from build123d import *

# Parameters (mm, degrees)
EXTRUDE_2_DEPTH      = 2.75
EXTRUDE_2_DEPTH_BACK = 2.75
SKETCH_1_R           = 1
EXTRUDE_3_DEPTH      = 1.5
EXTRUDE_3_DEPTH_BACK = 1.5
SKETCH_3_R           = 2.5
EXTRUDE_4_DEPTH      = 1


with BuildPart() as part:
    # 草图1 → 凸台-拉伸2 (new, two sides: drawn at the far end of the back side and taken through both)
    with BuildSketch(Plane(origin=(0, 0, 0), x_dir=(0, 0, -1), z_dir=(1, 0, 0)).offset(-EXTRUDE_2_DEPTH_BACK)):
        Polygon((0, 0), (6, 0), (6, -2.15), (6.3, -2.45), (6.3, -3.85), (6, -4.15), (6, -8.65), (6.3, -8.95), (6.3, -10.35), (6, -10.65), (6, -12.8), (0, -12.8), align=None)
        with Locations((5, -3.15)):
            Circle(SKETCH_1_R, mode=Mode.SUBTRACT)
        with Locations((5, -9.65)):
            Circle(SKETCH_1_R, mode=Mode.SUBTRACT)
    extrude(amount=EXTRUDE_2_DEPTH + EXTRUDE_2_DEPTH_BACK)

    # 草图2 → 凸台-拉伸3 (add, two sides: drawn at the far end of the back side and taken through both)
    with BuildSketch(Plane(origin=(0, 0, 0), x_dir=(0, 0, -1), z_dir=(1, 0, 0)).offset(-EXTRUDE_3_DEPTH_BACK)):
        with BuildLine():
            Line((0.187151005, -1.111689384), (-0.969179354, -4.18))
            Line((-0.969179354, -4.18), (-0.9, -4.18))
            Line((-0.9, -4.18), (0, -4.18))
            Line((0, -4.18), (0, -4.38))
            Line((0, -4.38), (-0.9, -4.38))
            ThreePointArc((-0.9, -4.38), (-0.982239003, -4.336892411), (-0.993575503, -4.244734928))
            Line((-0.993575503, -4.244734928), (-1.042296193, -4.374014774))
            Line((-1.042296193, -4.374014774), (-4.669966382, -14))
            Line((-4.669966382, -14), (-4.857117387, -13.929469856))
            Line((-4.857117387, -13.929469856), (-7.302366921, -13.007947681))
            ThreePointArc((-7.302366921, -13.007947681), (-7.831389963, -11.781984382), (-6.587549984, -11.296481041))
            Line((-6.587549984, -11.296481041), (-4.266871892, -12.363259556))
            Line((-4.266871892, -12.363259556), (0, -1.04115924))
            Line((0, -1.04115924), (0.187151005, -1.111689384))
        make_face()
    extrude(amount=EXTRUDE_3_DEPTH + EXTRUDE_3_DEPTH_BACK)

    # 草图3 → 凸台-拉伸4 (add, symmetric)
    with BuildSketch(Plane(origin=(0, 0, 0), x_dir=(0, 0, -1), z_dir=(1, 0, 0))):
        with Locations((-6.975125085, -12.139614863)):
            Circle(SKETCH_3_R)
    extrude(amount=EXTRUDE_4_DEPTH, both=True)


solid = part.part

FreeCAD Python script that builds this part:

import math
import FreeCAD as App
import Part
import Sketcher
from FreeCAD import Vector
Q = App.Units.Quantity

doc = App.newDocument("Part")
body = doc.addObject("PartDesign::Body", "Body")

sketch1 = doc.addObject("Sketcher::SketchObject", "Sketch")
body.addObject(sketch1)
sketch1.AttachmentSupport = (doc.YZ_Plane, [""])
sketch1.MapMode = "FlatFace"
sketch1.addGeometry(Part.LineSegment(Vector(0, -6, 0), Vector(0, 0, 0)), False)
sketch1.addGeometry(Part.LineSegment(Vector(0, 0, 0), Vector(-12.8, 0, 0)), False)
sketch1.addGeometry(Part.LineSegment(Vector(-12.8, 0, 0), Vector(-12.8, -6, 0)), False)
sketch1.addGeometry(Part.LineSegment(Vector(-12.8, -6, 0), Vector(-10.65, -6, 0)), False)
sketch1.addGeometry(Part.LineSegment(Vector(-10.65, -6, 0), Vector(-10.35, -6.3, 0)), False)
sketch1.addGeometry(Part.LineSegment(Vector(-10.35, -6.3, 0), Vector(-8.95, -6.3, 0)), False)
sketch1.addGeometry(Part.LineSegment(Vector(-8.95, -6.3, 0), Vector(-8.65, -6, 0)), False)
sketch1.addGeometry(Part.LineSegment(Vector(-8.65, -6, 0), Vector(-4.15, -6, 0)), False)
sketch1.addGeometry(Part.LineSegment(Vector(-4.15, -6, 0), Vector(-3.85, -6.3, 0)), False)
sketch1.addGeometry(Part.LineSegment(Vector(-3.85, -6.3, 0), Vector(-2.45, -6.3, 0)), False)
sketch1.addGeometry(Part.LineSegment(Vector(-2.45, -6.3, 0), Vector(-2.15, -6, 0)), False)
sketch1.addGeometry(Part.LineSegment(Vector(-2.15, -6, 0), Vector(0, -6, 0)), False)
sketch1.addGeometry(Part.Circle(Vector(-9.65, -5, 0), Vector(0, 0, 1), 1), False)
sketch1.addGeometry(Part.Circle(Vector(-3.15, -5, 0), Vector(0, 0, 1), 1), False)
sketch1.addConstraint(Sketcher.Constraint("Coincident", 0, 2, 1, 1))
sketch1.addConstraint(Sketcher.Constraint("Coincident", 1, 2, 2, 1))
sketch1.addConstraint(Sketcher.Constraint("Coincident", 2, 2, 3, 1))
sketch1.addConstraint(Sketcher.Constraint("Coincident", 3, 2, 4, 1))
sketch1.addConstraint(Sketcher.Constraint("Coincident", 4, 2, 5, 1))
sketch1.addConstraint(Sketcher.Constraint("Coincident", 5, 2, 6, 1))
sketch1.addConstraint(Sketcher.Constraint("Coincident", 6, 2, 7, 1))
sketch1.addConstraint(Sketcher.Constraint("Coincident", 7, 2, 8, 1))
sketch1.addConstraint(Sketcher.Constraint("Coincident", 8, 2, 9, 1))
sketch1.addConstraint(Sketcher.Constraint("Coincident", 9, 2, 10, 1))
sketch1.addConstraint(Sketcher.Constraint("Coincident", 10, 2, 11, 1))
sketch1.addConstraint(Sketcher.Constraint("Coincident", 11, 2, 0, 1))
sketch1.addConstraint(Sketcher.Constraint("Vertical", 0))
sketch1.addConstraint(Sketcher.Constraint("Horizontal", 1))
sketch1.addConstraint(Sketcher.Constraint("Vertical", 2))
sketch1.addConstraint(Sketcher.Constraint("Horizontal", 3))
sketch1.addConstraint(Sketcher.Constraint("Horizontal", 5))
sketch1.addConstraint(Sketcher.Constraint("Horizontal", 7))
sketch1.addConstraint(Sketcher.Constraint("Horizontal", 9))
sketch1.addConstraint(Sketcher.Constraint("Horizontal", 11))
sketch1.addConstraint(Sketcher.Constraint("Coincident", 0, 2, -1, 1))
sketch1.addConstraint(Sketcher.Constraint("Equal", 12, 13))
sketch1.addConstraint(Sketcher.Constraint("Perpendicular", 4, 6))
sketch1.addConstraint(Sketcher.Constraint("Perpendicular", 6, 8))
sketch1.addConstraint(Sketcher.Constraint("Perpendicular", 8, 10))
sketch1.addConstraint(Sketcher.Constraint("Horizontal", 12, 3, 13, 3))
sketch1.addConstraint(Sketcher.Constraint("Horizontal", 3, 2, 6, 2))
sketch1.addConstraint(Sketcher.Constraint("Horizontal", 5, 2, 8, 2))
sketch1.addConstraint(Sketcher.Constraint("Horizontal", 7, 2, 10, 2))
sketch1.addConstraint(Sketcher.Constraint("Equal", 5, 9))
sketch1.addConstraint(Sketcher.Constraint("Equal", 3, 11))
sketch1.addConstraint(Sketcher.Constraint("Equal", 4, 6))
sketch1.addConstraint(Sketcher.Constraint("Diameter", 12, Q("2 mm")))
sketch1.addConstraint(Sketcher.Constraint("DistanceY", 0, 1, 0, 2, Q("6 mm")))
sketch1.addConstraint(Sketcher.Constraint("DistanceX", 1, 2, 1, 1, Q("12.8 mm")))
sketch1.addConstraint(Sketcher.Constraint("DistanceX", 5, 1, 5, 2, Q("1.4 mm")))
sketch1.addConstraint(Sketcher.Constraint("DistanceX", 7, 1, 7, 2, Q("4.5 mm")))
sketch1.addConstraint(Sketcher.Constraint("DistanceY", 12, 3, -1, 1, Q("5 mm")))
sketch1.addConstraint(Sketcher.Constraint("DistanceX", 3, 2, 12, 3, Q("1 mm")))
sketch1.addConstraint(Sketcher.Constraint("DistanceX", 12, 3, 6, 2, Q("1 mm")))
sketch1.addConstraint(Sketcher.Constraint("DistanceX", 7, 2, 13, 3, Q("1 mm")))
pad1 = doc.addObject("PartDesign::Pad", "Pad")
body.addObject(pad1)
pad1.Profile = sketch1
pad1.Type = "TwoLengths"
pad1.Length = 2.75
pad1.Length2 = 2.75

sketch2 = doc.addObject("Sketcher::SketchObject", "Sketch001")
body.addObject(sketch2)
sketch2.AttachmentSupport = (doc.YZ_Plane, [""])
sketch2.MapMode = "FlatFace"
sketch2.addGeometry(Part.LineSegment(Vector(-4.18, 0.969179, 0), Vector(-1.111689, -0.187151, 0)), False)
sketch2.addGeometry(Part.LineSegment(Vector(-1.111689, -0.187151, 0), Vector(-1.041159, 0, 0)), False)
sketch2.addGeometry(Part.LineSegment(Vector(-1.041159, 0, 0), Vector(-12.36326, 4.266872, 0)), False)
sketch2.addGeometry(Part.LineSegment(Vector(-12.36326, 4.266872, 0), Vector(-11.296481, 6.58755, 0)), False)
sketch2.addGeometry(Part.ArcOfCircle(Part.Circle(Vector(-12.139615, 6.975125, 0), Vector(0, 0, 1), 0.927949), math.radians(-24.687484), math.radians(159.350469)), False)
sketch2.addGeometry(Part.LineSegment(Vector(-13.007948, 7.302367, 0), Vector(-13.92947, 4.857117, 0)), False)
sketch2.addGeometry(Part.LineSegment(Vector(-13.92947, 4.857117, 0), Vector(-14, 4.669966, 0)), False)
sketch2.addGeometry(Part.LineSegment(Vector(-14, 4.669966, 0), Vector(-4.374015, 1.042296, 0)), False)
sketch2.addGeometry(Part.LineSegment(Vector(-4.374015, 1.042296, 0), Vector(-4.244735, 0.993576, 0)), False)
sketch2.addGeometry(Part.ArcOfCircle(Part.Circle(Vector(-4.28, 0.9, 0), Vector(0, 0, 1), 0.1), math.radians(69.350469), math.radians(180)), False)
sketch2.addGeometry(Part.LineSegment(Vector(-4.38, 0.9, 0), Vector(-4.38, 0, 0)), False)
sketch2.addGeometry(Part.LineSegment(Vector(-4.38, 0, 0), Vector(-4.18, 0, 0)), False)
sketch2.addGeometry(Part.LineSegment(Vector(-4.18, 0, 0), Vector(-4.18, 0.969179, 0)), False)
sketch2.addConstraint(Sketcher.Constraint("Coincident", 0, 2, 1, 1))
sketch2.addConstraint(Sketcher.Constraint("Coincident", 1, 2, 2, 1))
sketch2.addConstraint(Sketcher.Constraint("Coincident", 2, 2, 3, 1))
sketch2.addConstraint(Sketcher.Constraint("Tangent", 3, 2, 4, 1))
sketch2.addConstraint(Sketcher.Constraint("Tangent", 4, 2, 5, 1))
sketch2.addConstraint(Sketcher.Constraint("Coincident", 5, 2, 6, 1))
sketch2.addConstraint(Sketcher.Constraint("Coincident", 6, 2, 7, 1))
sketch2.addConstraint(Sketcher.Constraint("Coincident", 7, 2, 8, 1))
sketch2.addConstraint(Sketcher.Constraint("Tangent", 8, 2, 9, 1))
sketch2.addConstraint(Sketcher.Constraint("Tangent", 9, 2, 10, 1))
sketch2.addConstraint(Sketcher.Constraint("Coincident", 10, 2, 11, 1))
sketch2.addConstraint(Sketcher.Constraint("Coincident", 11, 2, 12, 1))
sketch2.addConstraint(Sketcher.Constraint("Coincident", 12, 2, 0, 1))
sketch2.addConstraint(Sketcher.Constraint("Vertical", 10))
sketch2.addConstraint(Sketcher.Constraint("Horizontal", 11))
sketch2.addConstraint(Sketcher.Constraint("Vertical", 12))
sketch2.addConstraint(Sketcher.Constraint("PointOnObject", 1, 2, -1))
sketch2.addConstraint(Sketcher.Constraint("PointOnObject", 10, 2, -1))
sketch2.addConstraint(Sketcher.Constraint("Perpendicular", 0, 1))
sketch2.addConstraint(Sketcher.Constraint("Perpendicular", 1, 2))
sketch2.addConstraint(Sketcher.Constraint("Perpendicular", 2, 5))
sketch2.addConstraint(Sketcher.Constraint("Parallel", 5, 6))
sketch2.addConstraint(Sketcher.Constraint("Perpendicular", 6, 7))
sketch2.addConstraint(Sketcher.Constraint("Parallel", 7, 8))
sketch2.addConstraint(Sketcher.Constraint("Equal", 1, 6))
sketch2.addConstraint(Sketcher.Constraint("Radius", 9, Q("0.1 mm")))
sketch2.addConstraint(Sketcher.Constraint("DistanceX", 11, 1, 11, 2, Q("0.2 mm")))
sketch2.addConstraint(Sketcher.Constraint("DistanceY", 10, 2, 10, 1, Q("0.9 mm")))
sketch2.addConstraint(Sketcher.Constraint("DistanceX", 6, 2, -1, 1, Q("14 mm")))
sketch2.addConstraint(Sketcher.Constraint("Distance", 1, Q("0.2 mm")))
sketch2.addConstraint(Sketcher.Constraint("DistanceX", 9, 3, -1, 1, Q("4.28 mm")))
sketch2.addConstraint(Sketcher.Constraint("Radius", 4, Q("0.927949 mm")))
sketch2.addConstraint(Sketcher.Constraint("DistanceY", 12, 1, 12, 2, Q("0.969179 mm")))
sketch2.addConstraint(Sketcher.Constraint("DistanceX", 2, 2, 1, 2, Q("11.3221 mm")))
sketch2.addConstraint(Sketcher.Constraint("DistanceY", 0, 2, 3, 2, Q("6.774701 mm")))
sketch2.addConstraint(Sketcher.Constraint("DistanceY", 6, 2, 4, 2, Q("2.632401 mm")))
sketch2.addConstraint(Sketcher.Constraint("DistanceX", 7, 2, 8, 2, Q("0.12928 mm")))
pad2 = doc.addObject("PartDesign::Pad", "Pad001")
body.addObject(pad2)
pad2.Profile = sketch2
pad2.Type = "TwoLengths"
pad2.Length = 1.5
pad2.Length2 = 1.5

sketch3 = doc.addObject("Sketcher::SketchObject", "Sketch002")
body.addObject(sketch3)
sketch3.AttachmentSupport = (doc.YZ_Plane, [""])
sketch3.MapMode = "FlatFace"
sketch3.addGeometry(Part.Circle(Vector(-12.139615, 6.975125, 0), Vector(0, 0, 1), 2.5), False)
sketch3.addConstraint(Sketcher.Constraint("Diameter", 0, Q("5 mm")))
sketch3.addConstraint(Sketcher.Constraint("DistanceX", 0, 3, -1, 1, Q("12.139615 mm")))
sketch3.addConstraint(Sketcher.Constraint("DistanceY", -1, 1, 0, 3, Q("6.975125 mm")))
pad3 = doc.addObject("PartDesign::Pad", "Pad002")
body.addObject(pad3)
pad3.Profile = sketch3
pad3.Length = 2
pad3.Midplane = True

doc.recompute()
